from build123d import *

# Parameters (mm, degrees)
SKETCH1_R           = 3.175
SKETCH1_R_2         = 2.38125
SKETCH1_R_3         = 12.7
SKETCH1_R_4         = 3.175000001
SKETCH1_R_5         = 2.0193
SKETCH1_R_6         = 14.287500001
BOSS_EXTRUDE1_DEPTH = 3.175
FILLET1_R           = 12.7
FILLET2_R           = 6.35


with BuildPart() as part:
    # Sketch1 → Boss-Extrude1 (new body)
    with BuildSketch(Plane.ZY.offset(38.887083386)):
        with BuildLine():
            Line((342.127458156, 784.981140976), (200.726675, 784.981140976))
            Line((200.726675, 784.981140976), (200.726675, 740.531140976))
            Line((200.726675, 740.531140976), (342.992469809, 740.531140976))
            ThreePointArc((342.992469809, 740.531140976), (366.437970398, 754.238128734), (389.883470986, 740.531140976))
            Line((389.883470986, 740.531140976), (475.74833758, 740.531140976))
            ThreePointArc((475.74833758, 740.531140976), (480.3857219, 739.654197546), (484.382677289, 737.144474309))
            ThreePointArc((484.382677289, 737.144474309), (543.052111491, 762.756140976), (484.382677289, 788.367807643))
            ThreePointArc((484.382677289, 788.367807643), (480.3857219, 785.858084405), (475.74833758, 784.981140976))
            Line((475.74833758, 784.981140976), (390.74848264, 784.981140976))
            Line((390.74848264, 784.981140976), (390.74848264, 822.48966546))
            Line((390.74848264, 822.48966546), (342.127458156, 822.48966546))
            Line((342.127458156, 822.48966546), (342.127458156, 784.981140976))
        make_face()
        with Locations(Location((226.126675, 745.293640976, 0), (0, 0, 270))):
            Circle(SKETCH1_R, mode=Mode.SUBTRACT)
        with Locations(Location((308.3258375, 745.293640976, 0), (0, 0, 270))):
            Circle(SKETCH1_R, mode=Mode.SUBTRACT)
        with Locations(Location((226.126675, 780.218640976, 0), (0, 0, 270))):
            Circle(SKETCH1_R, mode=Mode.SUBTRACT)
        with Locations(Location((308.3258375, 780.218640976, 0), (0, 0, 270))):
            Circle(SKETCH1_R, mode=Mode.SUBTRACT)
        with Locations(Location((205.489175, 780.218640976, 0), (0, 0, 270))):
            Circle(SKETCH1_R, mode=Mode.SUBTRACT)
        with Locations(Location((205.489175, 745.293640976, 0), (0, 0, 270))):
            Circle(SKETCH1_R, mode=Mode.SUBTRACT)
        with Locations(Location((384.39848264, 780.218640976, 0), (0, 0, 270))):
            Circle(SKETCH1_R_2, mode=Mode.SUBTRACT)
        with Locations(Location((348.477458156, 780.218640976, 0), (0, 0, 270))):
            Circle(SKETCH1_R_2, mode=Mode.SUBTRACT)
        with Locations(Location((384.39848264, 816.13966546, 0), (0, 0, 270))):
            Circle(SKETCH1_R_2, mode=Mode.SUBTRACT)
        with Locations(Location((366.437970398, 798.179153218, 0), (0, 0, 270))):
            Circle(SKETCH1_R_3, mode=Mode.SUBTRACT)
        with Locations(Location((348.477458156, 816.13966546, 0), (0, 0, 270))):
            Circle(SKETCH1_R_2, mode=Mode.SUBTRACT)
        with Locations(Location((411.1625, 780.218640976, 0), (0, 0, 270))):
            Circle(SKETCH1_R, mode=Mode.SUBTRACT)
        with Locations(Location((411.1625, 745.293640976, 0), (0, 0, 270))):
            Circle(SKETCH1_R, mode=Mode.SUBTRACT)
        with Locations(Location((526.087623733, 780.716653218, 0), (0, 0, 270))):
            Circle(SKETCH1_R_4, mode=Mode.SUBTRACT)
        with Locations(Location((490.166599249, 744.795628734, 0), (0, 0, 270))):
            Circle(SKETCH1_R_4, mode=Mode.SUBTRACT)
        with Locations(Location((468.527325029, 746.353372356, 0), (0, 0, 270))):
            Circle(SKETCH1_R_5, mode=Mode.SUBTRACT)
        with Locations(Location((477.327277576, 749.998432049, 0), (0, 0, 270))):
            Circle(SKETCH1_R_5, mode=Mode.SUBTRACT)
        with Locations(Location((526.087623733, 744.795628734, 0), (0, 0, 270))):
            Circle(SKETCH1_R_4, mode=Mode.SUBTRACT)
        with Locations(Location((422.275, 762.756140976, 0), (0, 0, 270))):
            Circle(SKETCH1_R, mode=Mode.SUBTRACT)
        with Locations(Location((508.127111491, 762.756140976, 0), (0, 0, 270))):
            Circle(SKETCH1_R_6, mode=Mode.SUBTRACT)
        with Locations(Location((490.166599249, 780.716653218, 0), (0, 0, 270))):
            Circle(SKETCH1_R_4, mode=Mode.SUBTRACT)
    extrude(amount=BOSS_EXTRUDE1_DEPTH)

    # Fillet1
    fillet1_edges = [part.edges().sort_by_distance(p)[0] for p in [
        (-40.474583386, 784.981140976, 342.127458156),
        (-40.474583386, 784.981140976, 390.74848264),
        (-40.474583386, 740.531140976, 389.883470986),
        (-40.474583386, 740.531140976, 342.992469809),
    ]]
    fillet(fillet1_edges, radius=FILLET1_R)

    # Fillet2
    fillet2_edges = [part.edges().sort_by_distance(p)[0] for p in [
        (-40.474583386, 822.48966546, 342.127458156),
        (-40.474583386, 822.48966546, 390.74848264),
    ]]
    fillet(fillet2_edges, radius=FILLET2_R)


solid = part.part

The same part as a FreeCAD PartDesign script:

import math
import FreeCAD as App
import Part
import Sketcher
Q = App.Units.Quantity


def edges_at(feature, points):
    """Names of the edges that pass closest to the given points."""
    edges = feature.Shape.Edges
    near = lambda p: min(range(len(edges)), key=lambda i: edges[i].distToShape(Part.Vertex(*p))[0])
    return sorted({f"Edge{near(p) + 1}" for p in points})

doc = App.newDocument("Part")
body = doc.addObject("PartDesign::Body", "Body")

sketch1 = doc.addObject("Sketcher::SketchObject", "Sketch")
body.addObject(sketch1)
sketch1.AttachmentSupport = (doc.YZ_Plane, [""])
sketch1.MapMode = "FlatFace"
sketch1.AttachmentOffset = App.Placement(App.Vector(0, 0, -38.887083), App.Rotation())
sketch1.addGeometry(Part.LineSegment(App.Vector(784.981141, 342.127458, 0), App.Vector(784.981141, 200.726675, 0)), False)
sketch1.addGeometry(Part.LineSegment(App.Vector(784.981141, 200.726675, 0), App.Vector(740.531141, 200.726675, 0)), False)
sketch1.addGeometry(Part.LineSegment(App.Vector(740.531141, 200.726675, 0), App.Vector(740.531141, 342.99247, 0)), False)
sketch1.addGeometry(Part.ArcOfCircle(Part.Circle(App.Vector(727.333129, 366.43797, 0), App.Vector(0, 0, 1), 26.905), math.radians(-60.623838), math.radians(60.623838)), False)
sketch1.addGeometry(Part.LineSegment(App.Vector(740.531141, 389.883471, 0), App.Vector(740.531141, 475.748338, 0)), False)
sketch1.addGeometry(Part.ArcOfCircle(Part.Circle(App.Vector(727.831141, 475.748338, 0), App.Vector(0, 0, 1), 12.7), math.radians(0), math.radians(42.833428)), False)
sketch1.addGeometry(Part.ArcOfCircle(Part.Circle(App.Vector(762.756141, 508.127111, 0), App.Vector(0, 0, 1), 34.925), math.radians(-42.833428), math.radians(222.833428)), False)
sketch1.addGeometry(Part.ArcOfCircle(Part.Circle(App.Vector(797.681141, 475.748338, 0), App.Vector(0, 0, 1), 12.7), math.radians(137.166572), math.radians(180)), False)
sketch1.addGeometry(Part.LineSegment(App.Vector(784.981141, 475.748338, 0), App.Vector(784.981141, 390.748483, 0)), False)
sketch1.addGeometry(Part.LineSegment(App.Vector(784.981141, 390.748483, 0), App.Vector(822.489665, 390.748483, 0)), False)
sketch1.addGeometry(Part.LineSegment(App.Vector(822.489665, 390.748483, 0), App.Vector(822.489665, 342.127458, 0)), False)
sketch1.addGeometry(Part.LineSegment(App.Vector(822.489665, 342.127458, 0), App.Vector(784.981141, 342.127458, 0)), False)
sketch1.addGeometry(Part.Circle(App.Vector(745.293641, 205.489175, 0), App.Vector(0, 0, 1), 3.175), False)
sketch1.addGeometry(Part.Circle(App.Vector(745.293641, 226.126675, 0), App.Vector(0, 0, 1), 3.175), False)
sketch1.addGeometry(Part.Circle(App.Vector(745.293641, 308.325837, 0), App.Vector(0, 0, 1), 3.175), False)
sketch1.addGeometry(Part.Circle(App.Vector(745.293641, 411.1625, 0), App.Vector(0, 0, 1), 3.175), False)
sketch1.addGeometry(Part.Circle(App.Vector(746.353372, 468.527325, 0), App.Vector(0, 0, 1), 2.0193), False)
sketch1.addGeometry(Part.Circle(App.Vector(749.998432, 477.327278, 0), App.Vector(0, 0, 1), 2.0193), False)
sketch1.addGeometry(Part.Circle(App.Vector(744.795629, 490.166599, 0), App.Vector(0, 0, 1), 3.175), False)
sketch1.addGeometry(Part.Circle(App.Vector(744.795629, 526.087624, 0), App.Vector(0, 0, 1), 3.175), False)
sketch1.addGeometry(Part.Circle(App.Vector(762.756141, 422.275, 0), App.Vector(0, 0, 1), 3.175), False)
sketch1.addGeometry(Part.Circle(App.Vector(762.756141, 508.127111, 0), App.Vector(0, 0, 1), 14.2875), False)
sketch1.addGeometry(Part.Circle(App.Vector(780.218641, 205.489175, 0), App.Vector(0, 0, 1), 3.175), False)
sketch1.addGeometry(Part.Circle(App.Vector(780.218641, 226.126675, 0), App.Vector(0, 0, 1), 3.175), False)
sketch1.addGeometry(Part.Circle(App.Vector(780.218641, 308.325837, 0), App.Vector(0, 0, 1), 3.175), False)
sketch1.addGeometry(Part.Circle(App.Vector(780.218641, 348.477458, 0), App.Vector(0, 0, 1), 2.38125), False)
sketch1.addGeometry(Part.Circle(App.Vector(816.139665, 348.477458, 0), App.Vector(0, 0, 1), 2.38125), False)
sketch1.addGeometry(Part.Circle(App.Vector(780.218641, 384.398483, 0), App.Vector(0, 0, 1), 2.38125), False)
sketch1.addGeometry(Part.Circle(App.Vector(780.218641, 411.1625, 0), App.Vector(0, 0, 1), 3.175), False)
sketch1.addGeometry(Part.Circle(App.Vector(798.179153, 366.43797, 0), App.Vector(0, 0, 1), 12.7), False)
sketch1.addGeometry(Part.Circle(App.Vector(780.716653, 490.166599, 0), App.Vector(0, 0, 1), 3.175), False)
sketch1.addGeometry(Part.Circle(App.Vector(780.716653, 526.087624, 0), App.Vector(0, 0, 1), 3.175), False)
sketch1.addGeometry(Part.Circle(App.Vector(816.139665, 384.398483, 0), App.Vector(0, 0, 1), 2.38125), False)
sketch1.addConstraint(Sketcher.Constraint("Coincident", 0, 2, 1, 1))
sketch1.addConstraint(Sketcher.Constraint("Coincident", 1, 2, 2, 1))
sketch1.addConstraint(Sketcher.Constraint("Coincident", 2, 2, 3, 1))
sketch1.addConstraint(Sketcher.Constraint("Coincident", 3, 2, 4, 1))
sketch1.addConstraint(Sketcher.Constraint("Tangent", 4, 2, 5, 1))
sketch1.addConstraint(Sketcher.Constraint("Tangent", 5, 2, 6, 2))
sketch1.addConstraint(Sketcher.Constraint("Tangent", 6, 1, 7, 1))
sketch1.addConstraint(Sketcher.Constraint("Tangent", 7, 2, 8, 1))
sketch1.addConstraint(Sketcher.Constraint("Coincident", 8, 2, 9, 1))
sketch1.addConstraint(Sketcher.Constraint("Coincident", 9, 2, 10, 1))
sketch1.addConstraint(Sketcher.Constraint("Coincident", 10, 2, 11, 1))
sketch1.addConstraint(Sketcher.Constraint("Coincident", 11, 2, 0, 1))
sketch1.addConstraint(Sketcher.Constraint("Vertical", 0))
sketch1.addConstraint(Sketcher.Constraint("Horizontal", 1))
sketch1.addConstraint(Sketcher.Constraint("Vertical", 2))
sketch1.addConstraint(Sketcher.Constraint("Vertical", 4))
sketch1.addConstraint(Sketcher.Constraint("Vertical", 8))
sketch1.addConstraint(Sketcher.Constraint("Horizontal", 9))
sketch1.addConstraint(Sketcher.Constraint("Vertical", 10))
sketch1.addConstraint(Sketcher.Constraint("Horizontal", 11))
sketch1.addConstraint(Sketcher.Constraint("Coincident", 21, 3, 6, 3))
sketch1.addConstraint(Sketcher.Constraint("Equal", 5, 7))
sketch1.addConstraint(Sketcher.Constraint("Equal", 12, 13))
sketch1.addConstraint(Sketcher.Constraint("Equal", 13, 14))
sketch1.addConstraint(Sketcher.Constraint("Equal", 14, 15))
sketch1.addConstraint(Sketcher.Constraint("Equal", 16, 17))
sketch1.addConstraint(Sketcher.Constraint("Equal", 15, 18))
sketch1.addConstraint(Sketcher.Constraint("Equal", 18, 19))
sketch1.addConstraint(Sketcher.Constraint("Equal", 19, 20))
sketch1.addConstraint(Sketcher.Constraint("Equal", 20, 22))
sketch1.addConstraint(Sketcher.Constraint("Equal", 22, 23))
sketch1.addConstraint(Sketcher.Constraint("Equal", 23, 24))
sketch1.addConstraint(Sketcher.Constraint("Equal", 25, 26))
sketch1.addConstraint(Sketcher.Constraint("Equal", 26, 27))
sketch1.addConstraint(Sketcher.Constraint("Equal", 24, 28))
sketch1.addConstraint(Sketcher.Constraint("Equal", 7, 29))
sketch1.addConstraint(Sketcher.Constraint("Equal", 28, 30))
sketch1.addConstraint(Sketcher.Constraint("Equal", 30, 31))
sketch1.addConstraint(Sketcher.Constraint("Equal", 27, 32))
sketch1.addConstraint(Sketcher.Constraint("Horizontal", 5, 3, 7, 3))
sketch1.addConstraint(Sketcher.Constraint("Horizontal", 12, 3, 22, 3))
sketch1.addConstraint(Sketcher.Constraint("Horizontal", 13, 3, 23, 3))
sketch1.addConstraint(Sketcher.Constraint("Horizontal", 14, 3, 24, 3))
sketch1.addConstraint(Sketcher.Constraint("Horizontal", 25, 3, 26, 3))
sketch1.addConstraint(Sketcher.Constraint("Horizontal", 15, 3, 28, 3))
sketch1.addConstraint(Sketcher.Constraint("Horizontal", 3, 3, 29, 3))
sketch1.addConstraint(Sketcher.Constraint("Horizontal", 18, 3, 30, 3))
sketch1.addConstraint(Sketcher.Constraint("Horizontal", 19, 3, 31, 3))
sketch1.addConstraint(Sketcher.Constraint("Horizontal", 27, 3, 32, 3))
sketch1.addConstraint(Sketcher.Constraint("Vertical", 12, 3, 13, 3))
sketch1.addConstraint(Sketcher.Constraint("Vertical", 13, 3, 14, 3))
sketch1.addConstraint(Sketcher.Constraint("Vertical", 14, 3, 15, 3))
sketch1.addConstraint(Sketcher.Constraint("Vertical", 18, 3, 19, 3))
sketch1.addConstraint(Sketcher.Constraint("Vertical", 6, 3, 20, 3))
sketch1.addConstraint(Sketcher.Constraint("Vertical", 22, 3, 23, 3))
sketch1.addConstraint(Sketcher.Constraint("Vertical", 23, 3, 24, 3))
sketch1.addConstraint(Sketcher.Constraint("Vertical", 24, 3, 25, 3))
sketch1.addConstraint(Sketcher.Constraint("Vertical", 25, 3, 27, 3))
sketch1.addConstraint(Sketcher.Constraint("Vertical", 27, 3, 28, 3))
sketch1.addConstraint(Sketcher.Constraint("Vertical", 30, 3, 31, 3))
sketch1.addConstraint(Sketcher.Constraint("Vertical", 26, 3, 32, 3))
sketch1.addConstraint(Sketcher.Constraint("Vertical", 2, 2, 3, 2))
sketch1.addConstraint(Sketcher.Constraint("Vertical", 0, 2, 7, 2))
sketch1.addConstraint(Sketcher.Constraint("Diameter", 29, Q("1 in")))
sketch1.addConstraint(Sketcher.Constraint("Diameter", 12, Q("0.25 in")))
sketch1.addConstraint(Sketcher.Constraint("Diameter", 16, Q("0.159 in")))
sketch1.addConstraint(Sketcher.Constraint("Diameter", 21, Q("1.125 in")))
sketch1.addConstraint(Sketcher.Constraint("Diameter", 25, Q("0.1875 in")))
sketch1.addConstraint(Sketcher.Constraint("Radius", 6, Q("1.375 in")))
sketch1.addConstraint(Sketcher.Constraint("DistanceY", 0, 2, 23, 3, Q("1 in")))
sketch1.addConstraint(Sketcher.Constraint("DistanceX", 1, 2, 1, 1, Q("1.75 in")))
sketch1.addConstraint(Sketcher.Constraint("Radius", 3, Q("26.905 mm")))
sketch1.addConstraint(Sketcher.Constraint("DistanceY", 27, 3, 8, 2, Q("0.25 in")))
sketch1.addConstraint(Sketcher.Constraint("DistanceX", 32, 3, 9, 2, Q("0.25 in")))
sketch1.addConstraint(Sketcher.Constraint("DistanceY", 10, 2, 26, 3, Q("0.25 in")))
sketch1.addConstraint(Sketcher.Constraint("DistanceY", -1, 1, 15, 3, Q("16.1875 in")))
sketch1.addConstraint(Sketcher.Constraint("DistanceY", -1, 1, 20, 3, Q("16.625 in")))
sketch1.addConstraint(Sketcher.Constraint("DistanceX", 5, 3, 12, 3, Q("0.6875 in")))
sketch1.addConstraint(Sketcher.Constraint("DistanceY", 12, 3, 13, 3, Q("0.8125 in")))
sketch1.addConstraint(Sketcher.Constraint("DistanceX", 12, 3, 22, 3, Q("1.375 in")))
sketch1.addConstraint(Sketcher.Constraint("DistanceY", -1, 1, 18, 3, Q("490.166599 mm")))
sketch1.addConstraint(Sketcher.Constraint("DistanceY", 14, 3, 5, 3, Q("167.4225 mm")))
sketch1.addConstraint(Sketcher.Constraint("DistanceY", 16, 3, 19, 3, Q("57.560299 mm")))
sketch1.addConstraint(Sketcher.Constraint("DistanceY", 2, 2, 3, 3, Q("23.445501 mm")))
sketch1.addConstraint(Sketcher.Constraint("DistanceY", 17, 3, 5, 2, Q("7.0554 mm")))
sketch1.addConstraint(Sketcher.Constraint("DistanceX", 5, 2, 16, 3, Q("9.208898 mm")))
sketch1.addConstraint(Sketcher.Constraint("DistanceX", 9, 1, 9, 2, Q("37.508524 mm")))
sketch1.addConstraint(Sketcher.Constraint("DistanceY", 0, 2, 0, 1, Q("141.400783 mm")))
sketch1.addConstraint(Sketcher.Constraint("DistanceY", 2, 1, 2, 2, Q("142.265795 mm")))
sketch1.addConstraint(Sketcher.Constraint("DistanceY", 4, 1, 4, 2, Q("85.864867 mm")))
sketch1.addConstraint(Sketcher.Constraint("DistanceY", 8, 2, 8, 1, Q("84.999855 mm")))
sketch1.addConstraint(Sketcher.Constraint("DistanceX", -1, 1, 3, 3, Q("727.333129 mm")))
sketch1.addConstraint(Sketcher.Constraint("DistanceY", -1, 1, 3, 3, Q("366.43797 mm")))
sketch1.addConstraint(Sketcher.Constraint("DistanceX", -1, 1, 18, 3, Q("744.795629 mm")))
sketch1.addConstraint(Sketcher.Constraint("DistanceX", 16, 3, 17, 3, Q("3.64506 mm")))
sketch1.addConstraint(Sketcher.Constraint("DistanceX", 17, 3, 30, 3, Q("30.718221 mm")))
sketch1.addConstraint(Sketcher.Constraint("DistanceY", -1, 1, 16, 3, Q("468.527325 mm")))
sketch1.addConstraint(Sketcher.Constraint("DistanceX", -1, 1, 29, 3, Q("798.179153 mm")))
pad1 = doc.addObject("PartDesign::Pad", "Pad")
body.addObject(pad1)
pad1.Profile = sketch1
pad1.Length = Q("0.125 in")
pad1.Reversed = True
doc.recompute()

fillet = doc.addObject("PartDesign::Fillet", "Fillet")
body.addObject(fillet)
fillet.Base = (pad1, edges_at(pad1, [
    (-40.475, 784.981, 342.127),
    (-40.475, 784.981, 390.748),
    (-40.475, 740.531, 389.883),
    (-40.475, 740.531, 342.992),
]))
fillet.Radius = Q("0.5 in")
doc.recompute()

fillet2 = doc.addObject("PartDesign::Fillet", "Fillet001")
body.addObject(fillet2)
fillet2.Base = (fillet, edges_at(fillet, [(-40.475, 822.49, 342.127), (-40.475, 822.49, 390.748)]))
fillet2.Radius = Q("0.25 in")

doc.recompute()
